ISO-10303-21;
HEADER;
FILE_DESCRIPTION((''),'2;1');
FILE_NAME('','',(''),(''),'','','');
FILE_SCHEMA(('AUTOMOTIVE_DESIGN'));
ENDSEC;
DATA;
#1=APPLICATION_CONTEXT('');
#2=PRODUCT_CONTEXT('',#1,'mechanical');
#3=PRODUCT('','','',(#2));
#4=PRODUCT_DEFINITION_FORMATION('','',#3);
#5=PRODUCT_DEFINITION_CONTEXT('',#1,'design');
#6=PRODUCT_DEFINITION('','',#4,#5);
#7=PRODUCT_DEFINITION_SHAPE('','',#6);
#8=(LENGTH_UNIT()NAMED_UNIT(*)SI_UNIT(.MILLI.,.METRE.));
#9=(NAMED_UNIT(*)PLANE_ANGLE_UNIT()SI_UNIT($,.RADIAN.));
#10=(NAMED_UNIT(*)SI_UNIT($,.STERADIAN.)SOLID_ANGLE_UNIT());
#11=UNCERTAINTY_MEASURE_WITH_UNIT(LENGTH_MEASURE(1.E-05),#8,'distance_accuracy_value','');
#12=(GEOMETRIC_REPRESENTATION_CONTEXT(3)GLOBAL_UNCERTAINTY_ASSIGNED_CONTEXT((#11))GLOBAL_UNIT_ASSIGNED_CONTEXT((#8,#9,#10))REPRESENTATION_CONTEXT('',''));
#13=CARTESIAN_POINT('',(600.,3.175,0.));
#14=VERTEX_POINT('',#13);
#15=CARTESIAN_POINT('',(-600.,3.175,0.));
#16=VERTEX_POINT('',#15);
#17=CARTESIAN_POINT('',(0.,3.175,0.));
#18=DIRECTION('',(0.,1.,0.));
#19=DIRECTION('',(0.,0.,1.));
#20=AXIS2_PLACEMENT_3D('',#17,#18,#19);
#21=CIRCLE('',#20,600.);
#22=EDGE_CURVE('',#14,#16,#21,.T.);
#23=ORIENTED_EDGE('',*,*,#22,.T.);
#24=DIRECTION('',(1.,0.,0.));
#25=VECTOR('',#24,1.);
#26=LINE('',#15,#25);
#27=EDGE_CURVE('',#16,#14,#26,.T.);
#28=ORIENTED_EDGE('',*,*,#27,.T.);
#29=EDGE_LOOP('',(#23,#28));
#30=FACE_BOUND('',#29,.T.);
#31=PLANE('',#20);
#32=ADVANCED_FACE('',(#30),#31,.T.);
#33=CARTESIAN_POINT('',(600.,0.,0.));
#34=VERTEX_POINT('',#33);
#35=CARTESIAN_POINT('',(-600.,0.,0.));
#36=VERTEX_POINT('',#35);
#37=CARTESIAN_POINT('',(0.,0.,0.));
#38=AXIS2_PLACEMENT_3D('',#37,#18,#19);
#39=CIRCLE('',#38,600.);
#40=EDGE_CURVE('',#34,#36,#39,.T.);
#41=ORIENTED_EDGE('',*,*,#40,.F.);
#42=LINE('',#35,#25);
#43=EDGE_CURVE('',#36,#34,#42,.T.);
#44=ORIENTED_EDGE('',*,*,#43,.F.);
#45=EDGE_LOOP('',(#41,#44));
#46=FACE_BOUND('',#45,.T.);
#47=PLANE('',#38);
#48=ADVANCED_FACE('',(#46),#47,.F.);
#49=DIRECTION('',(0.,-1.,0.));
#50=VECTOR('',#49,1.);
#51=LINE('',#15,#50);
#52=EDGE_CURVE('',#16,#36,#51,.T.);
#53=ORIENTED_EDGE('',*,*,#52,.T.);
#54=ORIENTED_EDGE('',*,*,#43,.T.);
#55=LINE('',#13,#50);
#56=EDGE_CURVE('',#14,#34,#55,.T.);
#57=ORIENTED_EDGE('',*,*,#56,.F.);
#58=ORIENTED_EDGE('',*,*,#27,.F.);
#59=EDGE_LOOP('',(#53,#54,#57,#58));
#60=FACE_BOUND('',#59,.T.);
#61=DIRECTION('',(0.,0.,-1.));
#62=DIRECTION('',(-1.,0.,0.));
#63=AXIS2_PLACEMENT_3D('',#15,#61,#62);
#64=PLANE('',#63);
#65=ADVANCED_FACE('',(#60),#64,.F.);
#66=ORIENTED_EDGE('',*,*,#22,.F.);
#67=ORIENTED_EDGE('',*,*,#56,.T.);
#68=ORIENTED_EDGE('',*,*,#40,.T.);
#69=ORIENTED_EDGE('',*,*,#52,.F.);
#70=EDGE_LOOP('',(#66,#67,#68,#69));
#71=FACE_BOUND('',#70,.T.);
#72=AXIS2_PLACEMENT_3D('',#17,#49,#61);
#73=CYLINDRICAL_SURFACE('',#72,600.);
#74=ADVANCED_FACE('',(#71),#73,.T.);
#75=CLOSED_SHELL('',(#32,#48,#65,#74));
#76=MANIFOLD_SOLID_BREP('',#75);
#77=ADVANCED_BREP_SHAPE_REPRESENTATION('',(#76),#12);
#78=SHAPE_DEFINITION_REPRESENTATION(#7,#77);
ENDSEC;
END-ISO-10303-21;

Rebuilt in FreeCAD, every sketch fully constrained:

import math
import FreeCAD as App
import Part
import Sketcher

doc = App.newDocument("Part")
body = doc.addObject("PartDesign::Body", "Body")

# Sketch on XZ plane
sketch1 = body.newObject("Sketcher::SketchObject", "Sketch")
sketch1.AttachmentSupport = (doc.getObject("XZ_Plane"), [""])
sketch1.MapMode = "FlatFace"
sketch1.addGeometry(Part.LineSegment(App.Vector(-600, 0, 0), App.Vector(600, 0, 0)), False)
sketch1.addGeometry(Part.ArcOfCircle(Part.Circle(App.Vector(0, 0, 0), App.Vector(0, 0, 1), 600), math.radians(180), math.radians(360)), False)
sketch1.addConstraint(Sketcher.Constraint("Coincident", 0, 1, 1, 1))
sketch1.addConstraint(Sketcher.Constraint("Coincident", 1, 2, 0, 2))
sketch1.addConstraint(Sketcher.Constraint("Horizontal", 0))
sketch1.addConstraint(Sketcher.Constraint("Coincident", 1, 3, -1, 1))
sketch1.addConstraint(Sketcher.Constraint("PointOnObject", 0, 1, -1))
sketch1.addConstraint(Sketcher.Constraint("Radius", 1, 600.0))
pad1 = body.newObject("PartDesign::Pad", "Pad")
pad1.Profile = sketch1
pad1.Length = 3.175
pad1.Reversed = True

doc.recompute()
